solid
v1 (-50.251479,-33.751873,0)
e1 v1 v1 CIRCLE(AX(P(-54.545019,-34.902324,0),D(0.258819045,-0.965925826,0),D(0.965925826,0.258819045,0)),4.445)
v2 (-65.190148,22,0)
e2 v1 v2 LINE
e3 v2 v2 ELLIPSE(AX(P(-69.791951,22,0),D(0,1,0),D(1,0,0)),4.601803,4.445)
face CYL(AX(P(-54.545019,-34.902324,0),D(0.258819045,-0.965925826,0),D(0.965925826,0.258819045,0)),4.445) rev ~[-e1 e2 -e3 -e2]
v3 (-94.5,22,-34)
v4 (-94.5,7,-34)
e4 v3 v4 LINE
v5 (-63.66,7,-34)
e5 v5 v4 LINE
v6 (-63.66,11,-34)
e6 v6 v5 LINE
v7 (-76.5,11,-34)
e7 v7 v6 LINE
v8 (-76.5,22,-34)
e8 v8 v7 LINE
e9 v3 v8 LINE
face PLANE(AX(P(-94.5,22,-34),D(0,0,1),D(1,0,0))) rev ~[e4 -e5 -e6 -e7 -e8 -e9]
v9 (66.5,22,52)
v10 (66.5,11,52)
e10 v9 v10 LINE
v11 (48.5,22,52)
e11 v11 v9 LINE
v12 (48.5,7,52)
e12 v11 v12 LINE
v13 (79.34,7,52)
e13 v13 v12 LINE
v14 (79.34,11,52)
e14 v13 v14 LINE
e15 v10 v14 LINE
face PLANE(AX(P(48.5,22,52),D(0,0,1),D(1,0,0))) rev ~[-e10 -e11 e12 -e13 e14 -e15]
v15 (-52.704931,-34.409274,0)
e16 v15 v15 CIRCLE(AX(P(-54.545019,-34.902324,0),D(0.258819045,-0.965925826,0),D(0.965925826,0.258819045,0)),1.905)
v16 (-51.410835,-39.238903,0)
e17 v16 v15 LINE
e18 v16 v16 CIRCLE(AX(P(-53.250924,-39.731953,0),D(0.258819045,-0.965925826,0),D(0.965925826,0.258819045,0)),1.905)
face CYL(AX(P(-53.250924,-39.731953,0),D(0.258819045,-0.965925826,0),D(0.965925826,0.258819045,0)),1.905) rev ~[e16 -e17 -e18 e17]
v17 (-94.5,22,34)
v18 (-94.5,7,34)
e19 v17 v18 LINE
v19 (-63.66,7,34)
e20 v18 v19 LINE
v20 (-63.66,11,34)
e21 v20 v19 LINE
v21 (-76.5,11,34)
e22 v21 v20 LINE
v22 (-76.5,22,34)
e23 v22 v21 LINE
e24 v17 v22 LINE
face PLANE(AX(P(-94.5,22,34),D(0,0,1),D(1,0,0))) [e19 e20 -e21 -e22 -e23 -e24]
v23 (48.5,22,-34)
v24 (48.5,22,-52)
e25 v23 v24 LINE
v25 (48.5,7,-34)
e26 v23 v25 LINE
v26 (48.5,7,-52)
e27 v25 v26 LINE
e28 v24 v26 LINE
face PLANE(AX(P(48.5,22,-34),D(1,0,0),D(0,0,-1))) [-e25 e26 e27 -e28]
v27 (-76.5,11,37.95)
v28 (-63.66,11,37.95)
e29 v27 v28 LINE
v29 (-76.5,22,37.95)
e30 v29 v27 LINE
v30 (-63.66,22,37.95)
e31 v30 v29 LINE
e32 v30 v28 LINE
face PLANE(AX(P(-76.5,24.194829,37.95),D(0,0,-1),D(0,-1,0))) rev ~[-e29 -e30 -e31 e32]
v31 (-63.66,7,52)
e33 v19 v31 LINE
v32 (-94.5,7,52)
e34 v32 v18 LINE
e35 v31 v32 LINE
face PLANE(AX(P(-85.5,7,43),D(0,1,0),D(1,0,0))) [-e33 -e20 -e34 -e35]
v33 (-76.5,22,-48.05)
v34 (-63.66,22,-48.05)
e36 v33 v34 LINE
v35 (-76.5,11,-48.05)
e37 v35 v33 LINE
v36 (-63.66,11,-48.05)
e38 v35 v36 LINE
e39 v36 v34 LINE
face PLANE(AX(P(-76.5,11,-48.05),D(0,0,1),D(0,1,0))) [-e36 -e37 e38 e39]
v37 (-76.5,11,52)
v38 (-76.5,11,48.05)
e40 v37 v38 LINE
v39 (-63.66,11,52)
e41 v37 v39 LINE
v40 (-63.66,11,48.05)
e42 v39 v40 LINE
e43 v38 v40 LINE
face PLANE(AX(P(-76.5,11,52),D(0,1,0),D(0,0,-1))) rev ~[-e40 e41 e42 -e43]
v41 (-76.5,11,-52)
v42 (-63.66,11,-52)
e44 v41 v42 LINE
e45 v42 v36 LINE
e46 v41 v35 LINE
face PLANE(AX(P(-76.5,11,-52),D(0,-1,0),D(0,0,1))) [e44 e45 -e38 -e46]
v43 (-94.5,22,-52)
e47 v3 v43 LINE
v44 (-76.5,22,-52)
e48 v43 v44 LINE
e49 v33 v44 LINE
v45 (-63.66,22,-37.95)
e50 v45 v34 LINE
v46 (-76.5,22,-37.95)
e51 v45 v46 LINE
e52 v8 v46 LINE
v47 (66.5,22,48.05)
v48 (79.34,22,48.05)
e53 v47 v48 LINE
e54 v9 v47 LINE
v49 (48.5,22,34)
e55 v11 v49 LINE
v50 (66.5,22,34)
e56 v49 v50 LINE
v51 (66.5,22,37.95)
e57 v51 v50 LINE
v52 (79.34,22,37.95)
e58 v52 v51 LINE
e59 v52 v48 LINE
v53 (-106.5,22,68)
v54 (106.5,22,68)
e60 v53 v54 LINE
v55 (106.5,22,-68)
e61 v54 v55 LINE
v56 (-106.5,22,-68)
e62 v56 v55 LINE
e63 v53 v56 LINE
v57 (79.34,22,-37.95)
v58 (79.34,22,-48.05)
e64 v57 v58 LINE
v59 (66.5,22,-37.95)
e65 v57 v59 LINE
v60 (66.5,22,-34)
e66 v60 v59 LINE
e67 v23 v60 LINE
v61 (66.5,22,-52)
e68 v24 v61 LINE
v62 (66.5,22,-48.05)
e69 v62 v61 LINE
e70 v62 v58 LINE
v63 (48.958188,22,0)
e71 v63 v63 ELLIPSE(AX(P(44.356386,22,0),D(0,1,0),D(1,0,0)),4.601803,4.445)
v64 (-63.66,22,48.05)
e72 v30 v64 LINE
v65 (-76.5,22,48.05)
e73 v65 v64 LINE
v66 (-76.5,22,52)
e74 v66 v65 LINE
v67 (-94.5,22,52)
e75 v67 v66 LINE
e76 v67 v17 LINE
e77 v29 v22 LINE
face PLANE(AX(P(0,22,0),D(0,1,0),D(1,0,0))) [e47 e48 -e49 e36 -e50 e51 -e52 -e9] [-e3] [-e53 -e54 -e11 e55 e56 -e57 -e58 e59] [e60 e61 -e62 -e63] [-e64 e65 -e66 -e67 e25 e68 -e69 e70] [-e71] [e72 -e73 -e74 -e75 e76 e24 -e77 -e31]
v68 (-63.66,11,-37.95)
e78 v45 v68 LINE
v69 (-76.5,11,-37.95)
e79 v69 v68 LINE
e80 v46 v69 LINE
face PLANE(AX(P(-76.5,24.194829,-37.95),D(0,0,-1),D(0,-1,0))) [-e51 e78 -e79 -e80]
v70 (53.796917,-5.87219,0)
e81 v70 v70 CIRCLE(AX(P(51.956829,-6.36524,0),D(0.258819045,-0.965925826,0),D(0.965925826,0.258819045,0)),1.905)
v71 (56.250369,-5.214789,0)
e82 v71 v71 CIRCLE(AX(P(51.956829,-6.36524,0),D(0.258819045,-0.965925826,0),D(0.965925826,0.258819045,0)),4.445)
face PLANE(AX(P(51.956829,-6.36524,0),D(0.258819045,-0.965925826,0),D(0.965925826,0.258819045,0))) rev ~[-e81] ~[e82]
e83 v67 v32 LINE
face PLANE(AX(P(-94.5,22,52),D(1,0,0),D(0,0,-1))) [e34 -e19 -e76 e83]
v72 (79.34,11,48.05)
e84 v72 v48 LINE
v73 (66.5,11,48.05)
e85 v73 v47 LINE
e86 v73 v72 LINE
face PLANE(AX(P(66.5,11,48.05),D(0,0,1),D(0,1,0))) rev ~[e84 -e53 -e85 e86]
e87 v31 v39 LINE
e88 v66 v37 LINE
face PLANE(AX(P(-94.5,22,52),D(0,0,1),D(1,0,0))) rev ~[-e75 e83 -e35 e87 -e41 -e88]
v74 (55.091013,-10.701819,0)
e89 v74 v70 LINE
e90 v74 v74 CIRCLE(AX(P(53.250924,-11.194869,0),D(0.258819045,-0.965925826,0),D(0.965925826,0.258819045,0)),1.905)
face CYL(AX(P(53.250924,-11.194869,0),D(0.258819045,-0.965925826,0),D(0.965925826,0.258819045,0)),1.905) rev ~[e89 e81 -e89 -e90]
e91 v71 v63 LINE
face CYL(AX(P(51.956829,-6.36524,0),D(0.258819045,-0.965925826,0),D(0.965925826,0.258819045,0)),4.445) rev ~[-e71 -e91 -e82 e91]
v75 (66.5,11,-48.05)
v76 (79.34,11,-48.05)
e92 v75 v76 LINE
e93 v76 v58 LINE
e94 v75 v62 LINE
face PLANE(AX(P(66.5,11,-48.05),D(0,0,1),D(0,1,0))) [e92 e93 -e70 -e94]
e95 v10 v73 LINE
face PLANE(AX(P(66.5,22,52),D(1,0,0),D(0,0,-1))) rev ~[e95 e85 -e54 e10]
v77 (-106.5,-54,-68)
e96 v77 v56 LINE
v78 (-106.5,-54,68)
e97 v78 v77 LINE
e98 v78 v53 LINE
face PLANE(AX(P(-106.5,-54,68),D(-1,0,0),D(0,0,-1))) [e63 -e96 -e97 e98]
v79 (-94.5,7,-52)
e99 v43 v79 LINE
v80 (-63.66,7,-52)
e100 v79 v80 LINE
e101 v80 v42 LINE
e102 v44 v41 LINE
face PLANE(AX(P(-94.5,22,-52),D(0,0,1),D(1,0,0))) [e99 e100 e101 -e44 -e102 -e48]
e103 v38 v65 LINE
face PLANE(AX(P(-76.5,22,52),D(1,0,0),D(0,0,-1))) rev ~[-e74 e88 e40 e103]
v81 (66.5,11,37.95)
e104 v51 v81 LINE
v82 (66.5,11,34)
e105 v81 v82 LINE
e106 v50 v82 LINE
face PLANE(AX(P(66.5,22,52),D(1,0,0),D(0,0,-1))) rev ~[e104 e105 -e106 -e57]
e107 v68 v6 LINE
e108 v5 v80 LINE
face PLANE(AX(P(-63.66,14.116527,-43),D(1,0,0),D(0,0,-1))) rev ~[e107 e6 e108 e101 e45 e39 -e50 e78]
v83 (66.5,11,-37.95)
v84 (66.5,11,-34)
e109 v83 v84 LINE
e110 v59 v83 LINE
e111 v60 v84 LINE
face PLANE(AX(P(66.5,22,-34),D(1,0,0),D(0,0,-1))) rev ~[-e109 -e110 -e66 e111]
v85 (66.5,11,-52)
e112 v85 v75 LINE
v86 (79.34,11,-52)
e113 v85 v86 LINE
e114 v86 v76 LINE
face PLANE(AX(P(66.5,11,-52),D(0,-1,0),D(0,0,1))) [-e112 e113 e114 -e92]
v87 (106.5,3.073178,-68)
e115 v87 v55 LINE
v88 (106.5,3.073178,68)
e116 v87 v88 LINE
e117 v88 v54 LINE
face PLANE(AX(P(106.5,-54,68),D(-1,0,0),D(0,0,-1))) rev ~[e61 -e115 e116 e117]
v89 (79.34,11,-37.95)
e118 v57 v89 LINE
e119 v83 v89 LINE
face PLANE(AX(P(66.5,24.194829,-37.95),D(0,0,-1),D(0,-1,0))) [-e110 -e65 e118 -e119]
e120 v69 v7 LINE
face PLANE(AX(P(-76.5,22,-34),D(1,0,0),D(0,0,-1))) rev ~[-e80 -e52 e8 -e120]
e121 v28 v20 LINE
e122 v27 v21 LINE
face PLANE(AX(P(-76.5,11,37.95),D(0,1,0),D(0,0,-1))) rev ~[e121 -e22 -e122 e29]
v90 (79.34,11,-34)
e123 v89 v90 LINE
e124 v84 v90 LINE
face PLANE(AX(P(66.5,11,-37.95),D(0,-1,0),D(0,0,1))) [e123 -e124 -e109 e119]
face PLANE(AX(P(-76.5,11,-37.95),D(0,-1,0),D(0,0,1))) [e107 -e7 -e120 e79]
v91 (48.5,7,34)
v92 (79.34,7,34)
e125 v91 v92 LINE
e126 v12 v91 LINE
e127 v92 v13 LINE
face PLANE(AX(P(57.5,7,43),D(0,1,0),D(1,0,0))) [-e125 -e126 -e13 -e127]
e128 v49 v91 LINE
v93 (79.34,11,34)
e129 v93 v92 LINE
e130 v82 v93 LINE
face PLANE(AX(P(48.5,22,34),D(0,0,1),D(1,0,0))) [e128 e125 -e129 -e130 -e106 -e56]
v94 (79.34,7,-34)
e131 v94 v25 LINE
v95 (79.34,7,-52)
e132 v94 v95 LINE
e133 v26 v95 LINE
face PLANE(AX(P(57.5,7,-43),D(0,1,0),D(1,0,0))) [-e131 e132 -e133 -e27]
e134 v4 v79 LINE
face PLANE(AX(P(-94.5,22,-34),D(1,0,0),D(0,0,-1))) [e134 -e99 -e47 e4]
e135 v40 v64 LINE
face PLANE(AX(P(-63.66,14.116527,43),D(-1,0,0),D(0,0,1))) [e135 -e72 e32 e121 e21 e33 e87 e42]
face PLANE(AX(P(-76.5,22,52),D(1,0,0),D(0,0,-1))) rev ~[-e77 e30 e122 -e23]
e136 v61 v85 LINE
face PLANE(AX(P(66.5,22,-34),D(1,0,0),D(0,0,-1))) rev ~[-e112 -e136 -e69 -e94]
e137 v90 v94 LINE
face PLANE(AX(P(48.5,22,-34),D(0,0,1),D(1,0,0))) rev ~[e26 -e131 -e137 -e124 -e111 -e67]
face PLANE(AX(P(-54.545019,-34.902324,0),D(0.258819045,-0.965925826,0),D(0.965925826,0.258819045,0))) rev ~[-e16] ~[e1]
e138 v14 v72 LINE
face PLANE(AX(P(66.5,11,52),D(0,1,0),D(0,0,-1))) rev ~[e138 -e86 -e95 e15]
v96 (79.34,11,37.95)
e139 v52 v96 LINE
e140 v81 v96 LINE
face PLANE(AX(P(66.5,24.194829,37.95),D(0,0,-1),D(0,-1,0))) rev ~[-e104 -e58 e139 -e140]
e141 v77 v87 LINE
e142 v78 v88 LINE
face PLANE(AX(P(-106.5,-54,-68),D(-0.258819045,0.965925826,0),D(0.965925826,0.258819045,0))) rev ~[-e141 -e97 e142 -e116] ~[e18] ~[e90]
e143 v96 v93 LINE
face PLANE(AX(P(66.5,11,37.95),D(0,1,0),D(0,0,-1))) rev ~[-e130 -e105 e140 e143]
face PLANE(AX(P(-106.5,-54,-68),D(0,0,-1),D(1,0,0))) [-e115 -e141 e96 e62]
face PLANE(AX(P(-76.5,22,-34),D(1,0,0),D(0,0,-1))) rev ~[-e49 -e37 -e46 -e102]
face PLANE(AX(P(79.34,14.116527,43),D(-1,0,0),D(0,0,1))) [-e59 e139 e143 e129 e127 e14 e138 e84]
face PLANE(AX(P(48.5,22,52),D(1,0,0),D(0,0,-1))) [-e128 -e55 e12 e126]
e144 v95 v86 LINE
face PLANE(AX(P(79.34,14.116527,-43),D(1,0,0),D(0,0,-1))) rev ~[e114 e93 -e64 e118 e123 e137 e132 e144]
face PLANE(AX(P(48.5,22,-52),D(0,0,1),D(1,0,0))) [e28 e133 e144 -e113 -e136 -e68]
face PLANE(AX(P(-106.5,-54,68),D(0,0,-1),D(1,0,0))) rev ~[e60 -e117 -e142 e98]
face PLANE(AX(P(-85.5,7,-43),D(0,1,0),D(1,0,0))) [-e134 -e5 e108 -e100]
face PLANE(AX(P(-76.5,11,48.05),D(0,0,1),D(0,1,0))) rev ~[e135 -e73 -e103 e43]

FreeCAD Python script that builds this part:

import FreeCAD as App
import Part
import Sketcher

V = App.Vector
Q = App.Units.Quantity


def add_polygon(sketch, points):
    """Adds a closed chain of lines whose ends are joined by coincident constraints."""
    first, n = sketch.GeometryCount, len(points)
    for a, b in zip(points, points[1:] + points[:1]):
        sketch.addGeometry(Part.LineSegment(App.Vector(*a, 0), App.Vector(*b, 0)), False)
    for i in range(n):
        sketch.addConstraint(Sketcher.Constraint("Coincident", first + i, 2, first + (i + 1) % n, 1))

doc = App.newDocument("Part")
body = doc.addObject("PartDesign::Body", "Body")

sketch1 = body.newObject("Sketcher::SketchObject", "Sketch")
sketch1.AttachmentSupport = (doc.getObject("XZ_Plane"), [""])
sketch1.MapMode = "FlatFace"
add_polygon(sketch1, [(-106, -68), (-106, 68), (106, 68), (106, -68)])
sketch1.addConstraint([
    Sketcher.Constraint("Vertical", 0),
    Sketcher.Constraint("Horizontal", 1),
    Sketcher.Constraint("Vertical", 2),
    Sketcher.Constraint("Horizontal", 3),
    Sketcher.Constraint("Symmetric", 0, 2, 2, 2, -1, 1),
    Sketcher.Constraint("DistanceX", 1, 1, 1, 2, Q("213 mm")),
    Sketcher.Constraint("DistanceY", 0, 1, 0, 2, Q("136 mm")),
])
pad1 = body.newObject("PartDesign::Pad", "Pad")
pad1.Profile = sketch1
pad1.Type = "TwoLengths"
pad1.Length = 22
pad1.Length2 = 54
pad1.Reversed = True

sketch2 = body.newObject("Sketcher::SketchObject", "Sketch001")
sketch2.AttachmentSupport = (doc.getObject("XZ_Plane"), [""])
sketch2.MapMode = "FlatFace"
sketch2.AttachmentOffset = App.Placement(V(0, 0, -22), App.Rotation())
add_polygon(sketch2, [(-94, -52), (-94, -34), (-76, -34), (-76, -52)])
add_polygon(sketch2, [(-94, 34), (-94, 52), (-76, 52), (-76, 34)])
add_polygon(sketch2, [(48, -52), (48, -34), (66, -34), (66, -52)])
add_polygon(sketch2, [(48, 34), (48, 52), (66, 52), (66, 34)])
sketch2.addConstraint([
    Sketcher.Constraint("Vertical", 0),
    Sketcher.Constraint("Horizontal", 1),
    Sketcher.Constraint("Vertical", 2),
    Sketcher.Constraint("Horizontal", 3),
    Sketcher.Constraint("Vertical", 4),
    Sketcher.Constraint("Horizontal", 5),
    Sketcher.Constraint("Vertical", 6),
    Sketcher.Constraint("Horizontal", 7),
    Sketcher.Constraint("Vertical", 8),
    Sketcher.Constraint("Horizontal", 9),
    Sketcher.Constraint("Vertical", 10),
    Sketcher.Constraint("Horizontal", 11),
    Sketcher.Constraint("Vertical", 12),
    Sketcher.Constraint("Horizontal", 13),
    Sketcher.Constraint("Vertical", 14),
    Sketcher.Constraint("Horizontal", 15),
    Sketcher.Constraint("Symmetric", 3, 2, 4, 2, -1),
    Sketcher.Constraint("Symmetric", 1, 2, 6, 2, -1),
    Sketcher.Constraint("Symmetric", 11, 2, 12, 2, -1),
    Sketcher.Constraint("Symmetric", 9, 2, 14, 2, -1),
    Sketcher.Constraint("Horizontal", 1, 2, 8, 2),
    Sketcher.Constraint("Horizontal", 3, 2, 10, 2),
    Sketcher.Constraint("Equal", 7, 9),
    Sketcher.Constraint("Equal", 15, 0),
    Sketcher.Constraint("DistanceX", 1, 1, 1, 2, Q("18 mm")),
    Sketcher.Constraint("DistanceY", 0, 2, -1, 1, Q("34 mm")),
    Sketcher.Constraint("DistanceX", 1, 2, 8, 2, Q("125 mm")),
    Sketcher.Constraint("DistanceX", 0, 2, -1, 1, Q("94.5 mm")),
])
pocket1 = body.newObject("PartDesign::Pocket", "Pocket")
pocket1.Profile = sketch2
pocket1.Length = 15
pocket1.Reversed = True

sketch3 = body.newObject("Sketcher::SketchObject", "Sketch002")
sketch3.AttachmentSupport = (doc.getObject("YZ_Plane"), [""])
sketch3.MapMode = "FlatFace"
sketch3.AttachmentOffset = App.Placement(V(0, 0, -76.5), App.Rotation())
add_polygon(sketch3, [(7, 34), (7, 52), (11, 52), (11, 48), (24.2, 48), (24.2, 38), (11, 38), (11, 34)])
add_polygon(sketch3, [(7, -52), (7, -34), (11, -34), (11, -38), (24.2, -38), (24.2, -48), (11, -48), (11, -52)])
sketch3.addConstraint([
    Sketcher.Constraint("Vertical", 0),
    Sketcher.Constraint("Horizontal", 1),
    Sketcher.Constraint("Vertical", 2),
    Sketcher.Constraint("Horizontal", 3),
    Sketcher.Constraint("Vertical", 4),
    Sketcher.Constraint("Horizontal", 5),
    Sketcher.Constraint("Vertical", 6),
    Sketcher.Constraint("Horizontal", 7),
    Sketcher.Constraint("Vertical", 8),
    Sketcher.Constraint("Horizontal", 9),
    Sketcher.Constraint("Vertical", 10),
    Sketcher.Constraint("Horizontal", 11),
    Sketcher.Constraint("Vertical", 12),
    Sketcher.Constraint("Horizontal", 13),
    Sketcher.Constraint("Vertical", 14),
    Sketcher.Constraint("Horizontal", 15),
    Sketcher.Constraint("Symmetric", 7, 2, 8, 2, -1),
    Sketcher.Constraint("Symmetric", 5, 2, 10, 2, -1),
    Sketcher.Constraint("Symmetric", 3, 2, 12, 2, -1),
    Sketcher.Constraint("Symmetric", 1, 2, 14, 2, -1),
    Sketcher.Constraint("Vertical", 2, 2, 5, 2),
    Sketcher.Constraint("Equal", 2, 6),
    Sketcher.Constraint("DistanceX", 1, 1, 1, 2, Q("4 mm")),
    Sketcher.Constraint("DistanceY", 0, 1, 0, 2, Q("18 mm")),
    Sketcher.Constraint("DistanceY", 4, 2, 4, 1, Q("10.1 mm")),
    Sketcher.Constraint("DistanceX", -1, 1, 0, 2, Q("7 mm")),
    Sketcher.Constraint("DistanceY", -1, 1, 0, 2, Q("52 mm")),
    Sketcher.Constraint("DistanceX", 3, 1, 3, 2, Q("13.194829 mm")),
])
pocket2 = body.newObject("PartDesign::Pocket", "Pocket001")
pocket2.Profile = sketch3
pocket2.Length = 12.84
pocket2.Reversed = True

sketch4 = body.newObject("Sketcher::SketchObject", "Sketch003")
sketch4.AttachmentSupport = (doc.getObject("YZ_Plane"), [""])
sketch4.MapMode = "FlatFace"
sketch4.AttachmentOffset = App.Placement(V(0, 0, 66.5), App.Rotation())
add_polygon(sketch4, [(7, 34), (7, 52), (11, 52), (11, 48), (24.2, 48), (24.2, 38), (11, 38), (11, 34)])
add_polygon(sketch4, [(7, -52), (7, -34), (11, -34), (11, -38), (24.2, -38), (24.2, -48), (11, -48), (11, -52)])
sketch4.addConstraint([
    Sketcher.Constraint("Vertical", 0),
    Sketcher.Constraint("Horizontal", 1),
    Sketcher.Constraint("Vertical", 2),
    Sketcher.Constraint("Horizontal", 3),
    Sketcher.Constraint("Vertical", 4),
    Sketcher.Constraint("Horizontal", 5),
    Sketcher.Constraint("Vertical", 6),
    Sketcher.Constraint("Horizontal", 7),
    Sketcher.Constraint("Vertical", 8),
    Sketcher.Constraint("Horizontal", 9),
    Sketcher.Constraint("Vertical", 10),
    Sketcher.Constraint("Horizontal", 11),
    Sketcher.Constraint("Vertical", 12),
    Sketcher.Constraint("Horizontal", 13),
    Sketcher.Constraint("Vertical", 14),
    Sketcher.Constraint("Horizontal", 15),
    Sketcher.Constraint("Symmetric", 7, 2, 8, 2, -1),
    Sketcher.Constraint("Symmetric", 5, 2, 10, 2, -1),
    Sketcher.Constraint("Symmetric", 3, 2, 12, 2, -1),
    Sketcher.Constraint("Symmetric", 1, 2, 14, 2, -1),
    Sketcher.Constraint("Vertical", 2, 2, 5, 2),
    Sketcher.Constraint("Equal", 2, 6),
    Sketcher.Constraint("DistanceX", 1, 1, 1, 2, Q("4 mm")),
    Sketcher.Constraint("DistanceY", 0, 1, 0, 2, Q("18 mm")),
    Sketcher.Constraint("DistanceY", 4, 2, 4, 1, Q("10.1 mm")),
    Sketcher.Constraint("DistanceX", -1, 1, 0, 2, Q("7 mm")),
    Sketcher.Constraint("DistanceY", -1, 1, 0, 2, Q("52 mm")),
    Sketcher.Constraint("DistanceX", 3, 1, 3, 2, Q("13.194829 mm")),
])
pocket3 = body.newObject("PartDesign::Pocket", "Pocket002")
pocket3.Profile = sketch4
pocket3.Length = 12.84
pocket3.Reversed = True

sketch5 = body.newObject("Sketcher::SketchObject", "Sketch004")
sketch5.AttachmentSupport = (doc.getObject("XY_Plane"), [""])
sketch5.MapMode = "FlatFace"
sketch5.AttachmentOffset = App.Placement(V(0, 0, -68), App.Rotation())
add_polygon(sketch5, [(-106, -54), (106, 3), (106, -54)])
sketch5.addConstraint([
    Sketcher.Constraint("Vertical", 1),
    Sketcher.Constraint("Horizontal", 2),
    Sketcher.Constraint("DistanceX", 2, 2, 2, 1, Q("213 mm")),
    Sketcher.Constraint("Angle", 0, Q("15 deg")),
    Sketcher.Constraint("DistanceY", 1, 2, -1, 1, Q("54 mm")),
    Sketcher.Constraint("DistanceX", -1, 1, 0, 2, Q("106.5 mm")),
])
pocket4 = body.newObject("PartDesign::Pocket", "Pocket003")
pocket4.Profile = sketch5
pocket4.Type = "ThroughAll"
pocket4.Reversed = True

sketch6 = body.newObject("Sketcher::SketchObject", "Sketch005")
sketch6.Placement = App.Placement(V(6.365853, -23.757686, 0), App.Rotation(V(0.965925826, 0.258819045, 0), V(0, 0, 0.999999999), V(0.258819045, -0.965925826, 0), "ZXY"))
sketch6.addGeometry([
    Part.Circle(V(-61.7, 0, 0), V(0, 0, 1), 1.9),
    Part.Circle(V(48.5, 0, 0), V(0, 0, 1), 1.9),
], False)
sketch6.addConstraint([
    Sketcher.Constraint("Equal", 0, 1),
    Sketcher.Constraint("PointOnObject", 0, 3, -1),
    Sketcher.Constraint("PointOnObject", 1, 3, -1),
    Sketcher.Constraint("Diameter", 0, Q("3.81 mm")),
    Sketcher.Constraint("DistanceX", 0, 3, -1, 1, Q("61.719829 mm")),
    Sketcher.Constraint("DistanceX", -1, 1, 1, 3, Q("48.538997 mm")),
])
pocket5 = body.newObject("PartDesign::Pocket", "Pocket004")
pocket5.Profile = sketch6
pocket5.Length = 5

sketch7 = body.newObject("Sketcher::SketchObject", "Sketch006")
sketch7.Placement = App.Placement(V(5.071758, -18.928057, 0), App.Rotation(V(0.965925826, 0.258819045, 0), V(0, 0, 0.999999999), V(0.258819045, -0.965925826, 0), "ZXY"))
sketch7.addGeometry([
    Part.Circle(V(-61.7, 0, 0), V(0, 0, 1), 4.4),
    Part.Circle(V(48.5, 0, 0), V(0, 0, 1), 4.4),
], False)
sketch7.addConstraint([
    Sketcher.Constraint("Equal", 0, 1),
    Sketcher.Constraint("PointOnObject", 0, 3, -1),
    Sketcher.Constraint("PointOnObject", 1, 3, -1),
    Sketcher.Constraint("Diameter", 0, Q("8.89 mm")),
    Sketcher.Constraint("DistanceX", 0, 3, -1, 1, Q("61.719829 mm")),
    Sketcher.Constraint("DistanceX", -1, 1, 1, 3, Q("48.538997 mm")),
])
pocket6 = body.newObject("PartDesign::Pocket", "Pocket005")
pocket6.Profile = sketch7
pocket6.Type = "ThroughAll"

doc.recompute()
